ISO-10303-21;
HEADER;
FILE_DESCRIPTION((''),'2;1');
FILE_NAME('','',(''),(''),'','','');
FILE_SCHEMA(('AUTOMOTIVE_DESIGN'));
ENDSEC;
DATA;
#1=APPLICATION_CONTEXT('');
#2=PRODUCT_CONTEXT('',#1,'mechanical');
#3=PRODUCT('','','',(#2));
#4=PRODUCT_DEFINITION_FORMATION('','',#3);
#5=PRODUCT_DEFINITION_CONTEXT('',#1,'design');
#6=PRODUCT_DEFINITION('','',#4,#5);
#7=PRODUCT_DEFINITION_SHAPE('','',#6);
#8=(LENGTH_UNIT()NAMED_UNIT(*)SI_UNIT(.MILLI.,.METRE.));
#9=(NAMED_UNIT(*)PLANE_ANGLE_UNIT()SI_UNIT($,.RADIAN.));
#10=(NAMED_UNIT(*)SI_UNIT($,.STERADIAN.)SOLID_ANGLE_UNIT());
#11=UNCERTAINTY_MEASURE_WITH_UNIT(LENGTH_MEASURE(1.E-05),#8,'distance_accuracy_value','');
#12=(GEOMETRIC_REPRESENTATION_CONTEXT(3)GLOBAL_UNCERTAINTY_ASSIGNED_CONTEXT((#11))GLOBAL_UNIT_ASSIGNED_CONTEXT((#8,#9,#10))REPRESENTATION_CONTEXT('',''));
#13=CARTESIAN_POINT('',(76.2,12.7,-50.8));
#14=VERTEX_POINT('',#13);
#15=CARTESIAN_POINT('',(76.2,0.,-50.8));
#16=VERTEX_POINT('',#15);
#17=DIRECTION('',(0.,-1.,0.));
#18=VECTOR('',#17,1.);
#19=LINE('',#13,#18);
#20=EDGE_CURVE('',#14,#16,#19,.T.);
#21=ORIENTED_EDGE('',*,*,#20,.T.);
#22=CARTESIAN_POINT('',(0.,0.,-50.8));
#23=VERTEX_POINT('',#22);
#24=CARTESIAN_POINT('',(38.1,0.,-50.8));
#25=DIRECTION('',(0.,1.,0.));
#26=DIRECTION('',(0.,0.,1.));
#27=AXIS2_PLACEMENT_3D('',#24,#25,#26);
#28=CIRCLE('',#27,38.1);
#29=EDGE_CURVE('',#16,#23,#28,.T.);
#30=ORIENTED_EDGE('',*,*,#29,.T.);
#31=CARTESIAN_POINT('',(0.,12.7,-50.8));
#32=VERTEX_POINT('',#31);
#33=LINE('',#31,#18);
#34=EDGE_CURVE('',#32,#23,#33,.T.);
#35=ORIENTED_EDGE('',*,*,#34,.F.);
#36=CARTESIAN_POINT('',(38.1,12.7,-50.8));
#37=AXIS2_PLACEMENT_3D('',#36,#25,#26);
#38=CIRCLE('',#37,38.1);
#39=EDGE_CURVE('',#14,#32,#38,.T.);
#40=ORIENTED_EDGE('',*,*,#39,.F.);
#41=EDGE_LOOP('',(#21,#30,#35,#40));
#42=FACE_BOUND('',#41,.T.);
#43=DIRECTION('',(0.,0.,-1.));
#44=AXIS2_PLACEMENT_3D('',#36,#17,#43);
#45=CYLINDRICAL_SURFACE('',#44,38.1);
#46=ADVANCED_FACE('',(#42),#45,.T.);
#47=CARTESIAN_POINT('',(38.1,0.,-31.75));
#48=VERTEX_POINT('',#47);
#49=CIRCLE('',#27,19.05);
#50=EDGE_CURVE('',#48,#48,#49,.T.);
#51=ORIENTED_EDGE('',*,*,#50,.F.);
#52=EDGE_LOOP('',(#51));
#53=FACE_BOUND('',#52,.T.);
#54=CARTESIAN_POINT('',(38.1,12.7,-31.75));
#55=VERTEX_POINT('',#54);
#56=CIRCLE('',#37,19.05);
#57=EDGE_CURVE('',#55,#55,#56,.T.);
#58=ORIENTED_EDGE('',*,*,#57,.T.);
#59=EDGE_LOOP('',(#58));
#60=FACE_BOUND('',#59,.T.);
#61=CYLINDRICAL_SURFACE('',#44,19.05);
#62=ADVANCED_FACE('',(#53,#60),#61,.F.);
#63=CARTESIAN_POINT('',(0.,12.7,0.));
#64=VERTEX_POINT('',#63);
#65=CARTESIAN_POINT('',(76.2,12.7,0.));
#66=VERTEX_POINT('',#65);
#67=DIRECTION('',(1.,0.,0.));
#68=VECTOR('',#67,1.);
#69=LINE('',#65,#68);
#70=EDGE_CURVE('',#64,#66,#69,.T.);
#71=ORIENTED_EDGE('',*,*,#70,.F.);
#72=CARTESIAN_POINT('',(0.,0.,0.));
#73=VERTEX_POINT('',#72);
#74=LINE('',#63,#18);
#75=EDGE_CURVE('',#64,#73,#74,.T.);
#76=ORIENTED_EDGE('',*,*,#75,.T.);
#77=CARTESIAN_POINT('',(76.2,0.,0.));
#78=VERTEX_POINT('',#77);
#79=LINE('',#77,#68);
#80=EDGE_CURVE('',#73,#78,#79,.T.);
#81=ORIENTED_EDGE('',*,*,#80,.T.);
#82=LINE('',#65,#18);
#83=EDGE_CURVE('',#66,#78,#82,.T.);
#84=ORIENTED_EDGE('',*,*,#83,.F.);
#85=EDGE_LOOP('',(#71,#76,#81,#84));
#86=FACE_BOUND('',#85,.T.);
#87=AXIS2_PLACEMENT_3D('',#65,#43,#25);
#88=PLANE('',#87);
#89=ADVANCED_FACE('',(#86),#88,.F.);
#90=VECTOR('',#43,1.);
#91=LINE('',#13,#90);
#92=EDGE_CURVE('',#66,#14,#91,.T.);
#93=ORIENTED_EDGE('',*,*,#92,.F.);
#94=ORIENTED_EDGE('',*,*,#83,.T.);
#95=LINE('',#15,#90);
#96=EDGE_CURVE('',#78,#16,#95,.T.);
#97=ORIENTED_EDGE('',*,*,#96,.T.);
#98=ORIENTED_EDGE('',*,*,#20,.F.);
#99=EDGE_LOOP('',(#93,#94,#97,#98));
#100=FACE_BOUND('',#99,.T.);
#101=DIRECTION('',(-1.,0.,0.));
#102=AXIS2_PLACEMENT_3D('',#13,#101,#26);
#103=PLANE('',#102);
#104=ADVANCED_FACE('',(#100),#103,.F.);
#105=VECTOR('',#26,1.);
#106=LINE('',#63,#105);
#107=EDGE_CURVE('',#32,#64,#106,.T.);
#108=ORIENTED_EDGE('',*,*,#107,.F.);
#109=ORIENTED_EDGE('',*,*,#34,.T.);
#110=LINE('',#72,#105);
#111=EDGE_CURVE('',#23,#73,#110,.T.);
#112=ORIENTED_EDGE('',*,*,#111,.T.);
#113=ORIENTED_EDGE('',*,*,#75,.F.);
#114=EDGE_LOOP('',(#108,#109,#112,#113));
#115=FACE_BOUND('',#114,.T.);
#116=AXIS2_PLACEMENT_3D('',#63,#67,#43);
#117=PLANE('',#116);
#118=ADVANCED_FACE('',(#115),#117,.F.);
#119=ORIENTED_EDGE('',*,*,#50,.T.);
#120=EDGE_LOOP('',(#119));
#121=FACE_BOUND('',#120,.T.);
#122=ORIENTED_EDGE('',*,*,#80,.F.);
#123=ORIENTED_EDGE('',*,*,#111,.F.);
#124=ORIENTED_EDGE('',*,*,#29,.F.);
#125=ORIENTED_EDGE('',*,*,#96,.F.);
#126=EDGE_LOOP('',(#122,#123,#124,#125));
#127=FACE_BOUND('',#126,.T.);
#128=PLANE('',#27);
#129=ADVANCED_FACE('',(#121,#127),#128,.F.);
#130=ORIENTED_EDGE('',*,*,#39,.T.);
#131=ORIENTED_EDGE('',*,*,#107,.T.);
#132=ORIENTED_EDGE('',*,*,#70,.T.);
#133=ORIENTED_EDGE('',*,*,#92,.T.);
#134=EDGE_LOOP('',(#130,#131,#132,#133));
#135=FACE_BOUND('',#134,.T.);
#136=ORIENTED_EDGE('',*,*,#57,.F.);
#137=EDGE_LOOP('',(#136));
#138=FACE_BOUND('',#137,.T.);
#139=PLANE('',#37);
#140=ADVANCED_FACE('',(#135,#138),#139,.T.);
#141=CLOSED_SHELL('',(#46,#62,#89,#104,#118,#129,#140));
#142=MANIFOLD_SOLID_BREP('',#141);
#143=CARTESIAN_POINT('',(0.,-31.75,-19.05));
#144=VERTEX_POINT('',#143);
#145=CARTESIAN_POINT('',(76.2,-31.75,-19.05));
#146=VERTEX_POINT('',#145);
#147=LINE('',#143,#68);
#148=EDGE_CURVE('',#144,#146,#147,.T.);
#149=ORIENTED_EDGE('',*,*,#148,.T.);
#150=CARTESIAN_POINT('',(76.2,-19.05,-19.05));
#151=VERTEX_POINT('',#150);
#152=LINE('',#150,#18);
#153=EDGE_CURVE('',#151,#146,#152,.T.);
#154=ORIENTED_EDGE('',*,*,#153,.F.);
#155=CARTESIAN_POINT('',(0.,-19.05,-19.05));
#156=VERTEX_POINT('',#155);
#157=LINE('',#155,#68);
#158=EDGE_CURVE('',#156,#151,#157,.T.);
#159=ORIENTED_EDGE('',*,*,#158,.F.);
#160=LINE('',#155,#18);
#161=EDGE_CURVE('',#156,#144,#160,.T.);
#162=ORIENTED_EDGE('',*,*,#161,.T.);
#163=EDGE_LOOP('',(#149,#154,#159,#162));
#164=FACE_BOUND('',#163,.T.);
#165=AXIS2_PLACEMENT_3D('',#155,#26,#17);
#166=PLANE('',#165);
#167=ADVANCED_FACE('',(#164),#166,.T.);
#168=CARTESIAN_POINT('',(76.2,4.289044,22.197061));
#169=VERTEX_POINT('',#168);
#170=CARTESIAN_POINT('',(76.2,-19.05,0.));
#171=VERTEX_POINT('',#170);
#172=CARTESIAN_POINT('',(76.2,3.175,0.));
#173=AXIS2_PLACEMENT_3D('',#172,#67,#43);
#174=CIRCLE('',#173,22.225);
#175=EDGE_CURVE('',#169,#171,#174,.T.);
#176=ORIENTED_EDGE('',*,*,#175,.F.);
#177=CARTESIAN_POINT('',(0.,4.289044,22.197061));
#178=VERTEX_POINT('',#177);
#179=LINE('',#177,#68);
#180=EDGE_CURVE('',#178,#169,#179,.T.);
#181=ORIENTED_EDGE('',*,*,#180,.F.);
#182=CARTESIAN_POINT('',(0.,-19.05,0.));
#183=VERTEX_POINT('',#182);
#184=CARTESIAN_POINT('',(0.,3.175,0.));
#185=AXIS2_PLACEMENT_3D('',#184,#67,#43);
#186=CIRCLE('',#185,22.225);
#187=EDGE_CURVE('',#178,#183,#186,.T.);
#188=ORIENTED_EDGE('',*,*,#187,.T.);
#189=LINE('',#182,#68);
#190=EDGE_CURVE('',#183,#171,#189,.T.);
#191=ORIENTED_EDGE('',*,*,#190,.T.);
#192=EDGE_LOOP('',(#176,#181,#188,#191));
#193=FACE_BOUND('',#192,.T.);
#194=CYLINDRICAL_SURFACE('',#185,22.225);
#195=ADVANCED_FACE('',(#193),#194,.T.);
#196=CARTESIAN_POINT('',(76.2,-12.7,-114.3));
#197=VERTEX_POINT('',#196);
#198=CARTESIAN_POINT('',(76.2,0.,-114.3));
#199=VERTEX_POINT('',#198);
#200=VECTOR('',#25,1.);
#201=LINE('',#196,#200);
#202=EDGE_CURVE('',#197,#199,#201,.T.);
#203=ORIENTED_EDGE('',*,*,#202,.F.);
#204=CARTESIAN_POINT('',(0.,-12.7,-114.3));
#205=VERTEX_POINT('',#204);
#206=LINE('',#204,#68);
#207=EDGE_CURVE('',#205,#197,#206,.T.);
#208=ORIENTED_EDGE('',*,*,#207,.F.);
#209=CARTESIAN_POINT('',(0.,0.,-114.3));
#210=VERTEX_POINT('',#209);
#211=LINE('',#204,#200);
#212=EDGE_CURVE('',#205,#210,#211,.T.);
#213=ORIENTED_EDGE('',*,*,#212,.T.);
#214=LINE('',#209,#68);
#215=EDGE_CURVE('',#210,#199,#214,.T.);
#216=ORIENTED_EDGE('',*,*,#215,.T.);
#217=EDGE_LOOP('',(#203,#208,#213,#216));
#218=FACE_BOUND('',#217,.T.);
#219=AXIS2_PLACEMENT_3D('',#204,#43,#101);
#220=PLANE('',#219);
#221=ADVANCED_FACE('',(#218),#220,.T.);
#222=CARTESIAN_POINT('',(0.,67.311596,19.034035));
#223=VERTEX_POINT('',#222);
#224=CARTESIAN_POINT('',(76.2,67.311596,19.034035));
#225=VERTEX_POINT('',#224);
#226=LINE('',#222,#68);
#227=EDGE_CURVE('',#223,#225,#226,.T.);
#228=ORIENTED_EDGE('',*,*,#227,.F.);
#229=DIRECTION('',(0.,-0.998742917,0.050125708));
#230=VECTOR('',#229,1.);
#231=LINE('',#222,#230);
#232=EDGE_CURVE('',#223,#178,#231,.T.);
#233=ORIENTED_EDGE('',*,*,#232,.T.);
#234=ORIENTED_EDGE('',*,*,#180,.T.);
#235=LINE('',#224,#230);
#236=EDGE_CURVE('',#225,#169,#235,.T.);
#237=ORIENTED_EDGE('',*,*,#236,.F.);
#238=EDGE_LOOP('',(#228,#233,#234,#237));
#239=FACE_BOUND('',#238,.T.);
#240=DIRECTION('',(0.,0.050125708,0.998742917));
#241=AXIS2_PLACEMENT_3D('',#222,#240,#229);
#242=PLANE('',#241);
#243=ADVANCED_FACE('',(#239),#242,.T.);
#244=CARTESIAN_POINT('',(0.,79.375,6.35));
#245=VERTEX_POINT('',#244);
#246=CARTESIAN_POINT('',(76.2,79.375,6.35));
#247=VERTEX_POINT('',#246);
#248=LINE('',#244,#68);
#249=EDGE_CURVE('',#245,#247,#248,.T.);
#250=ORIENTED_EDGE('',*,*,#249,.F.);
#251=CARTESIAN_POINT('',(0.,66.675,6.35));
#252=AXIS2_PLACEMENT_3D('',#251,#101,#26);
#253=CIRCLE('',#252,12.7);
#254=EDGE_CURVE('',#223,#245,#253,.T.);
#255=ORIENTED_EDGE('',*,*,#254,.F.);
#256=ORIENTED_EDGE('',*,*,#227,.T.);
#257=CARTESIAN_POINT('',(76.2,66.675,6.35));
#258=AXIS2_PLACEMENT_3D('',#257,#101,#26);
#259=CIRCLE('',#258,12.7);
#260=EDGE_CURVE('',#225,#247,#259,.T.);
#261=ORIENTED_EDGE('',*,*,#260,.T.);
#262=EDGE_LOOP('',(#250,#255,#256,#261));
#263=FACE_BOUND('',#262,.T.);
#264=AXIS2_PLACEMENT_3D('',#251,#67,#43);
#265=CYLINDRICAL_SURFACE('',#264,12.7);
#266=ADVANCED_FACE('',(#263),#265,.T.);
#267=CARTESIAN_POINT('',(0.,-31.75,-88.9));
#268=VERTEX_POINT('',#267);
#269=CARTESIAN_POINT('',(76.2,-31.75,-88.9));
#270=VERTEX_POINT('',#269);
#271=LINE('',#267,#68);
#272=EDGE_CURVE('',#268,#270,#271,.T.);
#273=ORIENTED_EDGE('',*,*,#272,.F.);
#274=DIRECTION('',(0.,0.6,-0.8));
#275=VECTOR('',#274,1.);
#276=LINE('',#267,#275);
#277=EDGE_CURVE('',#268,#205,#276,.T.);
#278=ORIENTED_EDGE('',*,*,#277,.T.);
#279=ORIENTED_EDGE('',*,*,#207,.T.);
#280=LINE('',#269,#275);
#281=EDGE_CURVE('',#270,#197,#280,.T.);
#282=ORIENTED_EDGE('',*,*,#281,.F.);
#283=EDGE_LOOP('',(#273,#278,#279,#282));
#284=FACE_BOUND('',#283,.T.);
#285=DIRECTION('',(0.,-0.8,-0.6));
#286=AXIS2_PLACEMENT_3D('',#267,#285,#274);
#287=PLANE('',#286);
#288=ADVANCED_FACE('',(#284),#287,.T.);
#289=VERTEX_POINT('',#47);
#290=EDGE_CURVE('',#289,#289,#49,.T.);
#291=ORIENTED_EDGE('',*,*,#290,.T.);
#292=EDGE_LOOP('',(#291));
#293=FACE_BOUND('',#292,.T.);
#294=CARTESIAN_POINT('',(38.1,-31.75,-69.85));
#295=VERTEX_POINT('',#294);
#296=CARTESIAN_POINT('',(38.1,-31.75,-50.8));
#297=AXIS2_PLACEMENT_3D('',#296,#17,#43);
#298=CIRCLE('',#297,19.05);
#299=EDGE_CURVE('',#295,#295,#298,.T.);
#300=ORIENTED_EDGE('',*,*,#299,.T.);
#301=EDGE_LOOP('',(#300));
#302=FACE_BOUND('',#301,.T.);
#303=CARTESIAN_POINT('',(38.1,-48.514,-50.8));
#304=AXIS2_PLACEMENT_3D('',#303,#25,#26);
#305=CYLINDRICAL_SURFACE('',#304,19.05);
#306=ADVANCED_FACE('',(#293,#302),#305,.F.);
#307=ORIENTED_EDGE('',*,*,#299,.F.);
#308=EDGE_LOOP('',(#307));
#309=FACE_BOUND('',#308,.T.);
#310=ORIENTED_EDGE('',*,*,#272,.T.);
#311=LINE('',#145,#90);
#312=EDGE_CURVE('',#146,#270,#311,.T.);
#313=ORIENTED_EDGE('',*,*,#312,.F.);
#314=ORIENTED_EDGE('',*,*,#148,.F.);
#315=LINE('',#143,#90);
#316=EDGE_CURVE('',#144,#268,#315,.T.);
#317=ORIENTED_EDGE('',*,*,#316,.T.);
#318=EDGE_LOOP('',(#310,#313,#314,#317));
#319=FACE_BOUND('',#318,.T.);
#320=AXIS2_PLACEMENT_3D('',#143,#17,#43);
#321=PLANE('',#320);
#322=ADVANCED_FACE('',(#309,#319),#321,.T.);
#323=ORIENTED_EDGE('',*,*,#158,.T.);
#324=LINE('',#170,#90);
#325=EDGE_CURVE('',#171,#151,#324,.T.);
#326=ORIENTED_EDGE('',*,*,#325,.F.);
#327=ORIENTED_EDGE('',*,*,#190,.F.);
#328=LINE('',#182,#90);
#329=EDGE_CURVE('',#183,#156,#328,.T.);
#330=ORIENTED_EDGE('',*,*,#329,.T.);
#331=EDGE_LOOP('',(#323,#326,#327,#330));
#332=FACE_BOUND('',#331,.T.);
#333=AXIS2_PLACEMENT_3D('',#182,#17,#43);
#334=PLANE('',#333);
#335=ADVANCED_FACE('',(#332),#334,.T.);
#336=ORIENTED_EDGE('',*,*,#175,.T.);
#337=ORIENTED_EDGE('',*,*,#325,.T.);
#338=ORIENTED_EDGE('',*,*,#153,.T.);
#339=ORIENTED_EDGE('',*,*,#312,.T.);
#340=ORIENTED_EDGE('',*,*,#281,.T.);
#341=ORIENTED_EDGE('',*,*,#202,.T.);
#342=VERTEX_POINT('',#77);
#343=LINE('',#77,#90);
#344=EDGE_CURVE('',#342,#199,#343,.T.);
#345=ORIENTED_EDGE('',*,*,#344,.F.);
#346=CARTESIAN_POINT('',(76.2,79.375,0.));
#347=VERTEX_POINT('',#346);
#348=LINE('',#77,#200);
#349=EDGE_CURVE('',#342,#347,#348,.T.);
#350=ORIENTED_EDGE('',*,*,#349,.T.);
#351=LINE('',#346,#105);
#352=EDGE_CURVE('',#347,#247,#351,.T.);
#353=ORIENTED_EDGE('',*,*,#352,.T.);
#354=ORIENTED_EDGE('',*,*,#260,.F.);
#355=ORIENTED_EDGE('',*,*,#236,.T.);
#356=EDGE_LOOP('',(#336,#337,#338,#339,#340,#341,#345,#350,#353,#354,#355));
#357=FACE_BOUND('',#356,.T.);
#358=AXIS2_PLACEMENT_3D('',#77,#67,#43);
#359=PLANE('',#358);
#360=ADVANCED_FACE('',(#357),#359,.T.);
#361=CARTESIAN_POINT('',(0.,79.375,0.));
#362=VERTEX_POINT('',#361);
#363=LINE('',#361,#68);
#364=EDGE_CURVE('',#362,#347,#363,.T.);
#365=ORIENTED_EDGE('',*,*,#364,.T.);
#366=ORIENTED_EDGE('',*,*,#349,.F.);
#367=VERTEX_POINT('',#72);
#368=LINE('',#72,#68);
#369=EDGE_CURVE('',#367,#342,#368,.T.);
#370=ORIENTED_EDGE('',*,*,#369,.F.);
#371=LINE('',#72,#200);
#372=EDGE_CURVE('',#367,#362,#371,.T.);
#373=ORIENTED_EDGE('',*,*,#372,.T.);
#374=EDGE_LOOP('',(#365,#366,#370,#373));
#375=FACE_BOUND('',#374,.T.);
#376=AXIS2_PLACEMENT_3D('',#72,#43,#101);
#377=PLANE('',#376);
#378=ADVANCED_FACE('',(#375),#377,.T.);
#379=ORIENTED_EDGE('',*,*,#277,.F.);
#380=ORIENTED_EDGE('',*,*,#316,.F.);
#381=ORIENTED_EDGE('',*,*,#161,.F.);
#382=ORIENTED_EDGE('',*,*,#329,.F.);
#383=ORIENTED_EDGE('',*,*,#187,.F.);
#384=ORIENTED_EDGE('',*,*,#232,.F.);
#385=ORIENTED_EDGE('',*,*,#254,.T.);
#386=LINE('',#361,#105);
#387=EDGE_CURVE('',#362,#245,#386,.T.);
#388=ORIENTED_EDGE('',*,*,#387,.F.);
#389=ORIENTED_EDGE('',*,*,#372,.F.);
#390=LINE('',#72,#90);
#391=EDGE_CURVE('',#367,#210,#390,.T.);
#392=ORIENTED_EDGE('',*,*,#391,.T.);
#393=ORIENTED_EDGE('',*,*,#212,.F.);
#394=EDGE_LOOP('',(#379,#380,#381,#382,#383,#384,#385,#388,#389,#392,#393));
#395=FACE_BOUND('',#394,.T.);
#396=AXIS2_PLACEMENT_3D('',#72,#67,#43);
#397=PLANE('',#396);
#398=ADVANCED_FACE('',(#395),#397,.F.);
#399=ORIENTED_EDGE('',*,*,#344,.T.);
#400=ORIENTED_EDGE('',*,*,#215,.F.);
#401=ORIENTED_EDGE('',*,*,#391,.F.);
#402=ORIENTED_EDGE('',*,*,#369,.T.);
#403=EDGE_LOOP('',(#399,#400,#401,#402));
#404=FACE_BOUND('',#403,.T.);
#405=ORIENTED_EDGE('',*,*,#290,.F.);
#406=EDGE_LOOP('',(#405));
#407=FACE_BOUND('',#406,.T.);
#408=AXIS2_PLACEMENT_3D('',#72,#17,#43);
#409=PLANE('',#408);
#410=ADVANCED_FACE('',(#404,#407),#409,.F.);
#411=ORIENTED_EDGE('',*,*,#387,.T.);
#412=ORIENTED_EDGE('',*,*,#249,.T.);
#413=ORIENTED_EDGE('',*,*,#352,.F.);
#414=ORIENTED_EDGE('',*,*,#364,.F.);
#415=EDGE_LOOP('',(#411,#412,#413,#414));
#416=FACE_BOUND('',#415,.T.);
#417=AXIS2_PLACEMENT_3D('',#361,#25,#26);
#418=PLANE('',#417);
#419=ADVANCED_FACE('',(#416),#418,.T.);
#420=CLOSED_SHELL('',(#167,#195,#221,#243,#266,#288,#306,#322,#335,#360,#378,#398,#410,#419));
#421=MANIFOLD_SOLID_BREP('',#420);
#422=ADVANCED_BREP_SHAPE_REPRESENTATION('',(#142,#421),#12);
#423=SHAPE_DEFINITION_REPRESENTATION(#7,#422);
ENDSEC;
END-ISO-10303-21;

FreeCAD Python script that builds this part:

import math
import FreeCAD as App
import Part
import Sketcher

V = App.Vector
Q = App.Units.Quantity

doc = App.newDocument("Part")
body = doc.addObject("PartDesign::Body", "Body")

sketch1 = body.newObject("Sketcher::SketchObject", "Sketch")
sketch1.AttachmentSupport = (doc.getObject("YZ_Plane"), [""])
sketch1.MapMode = "FlatFace"
sketch1.addGeometry([
    Part.LineSegment(V(-31.7, -88.9, 0), V(-31.8, -19.1, 0)),
    Part.LineSegment(V(-31.8, -19.1, 0), V(-19, -19, 0)),
    Part.LineSegment(V(-19, -19, 0), V(-19.1, 0, 0)),
    Part.ArcOfCircle(Part.Circle(V(3.2, 0, 0), V(0, 0, 1), 22.2), math.radians(87), math.radians(180)),
    Part.LineSegment(V(4.3, 22.2, 0), V(67.3, 19, 0)),
    Part.ArcOfCircle(Part.Circle(V(66.7, 6.4, 0), V(0, 0, 1), 12.7), math.radians(0), math.radians(87)),
    Part.LineSegment(V(79.4, 6.4, 0), V(79.4, 0, 0)),
    Part.LineSegment(V(79.4, 0, 0), V(3.2, 0, 0)),
    Part.LineSegment(V(3.2, 0, 0), V(0, 0, 0)),
    Part.LineSegment(V(0, 0, 0), V(0, -114.3, 0)),
    Part.LineSegment(V(0, -114.3, 0), V(-12.7, -114.3, 0)),
    Part.LineSegment(V(-12.7, -114.3, 0), V(-31.7, -88.9, 0)),
], False)
sketch1.addConstraint([
    Sketcher.Constraint("Coincident", 0, 2, 1, 1),
    Sketcher.Constraint("Coincident", 1, 2, 2, 1),
    Sketcher.Constraint("Tangent", 2, 2, 3, 2),
    Sketcher.Constraint("Tangent", 3, 1, 4, 1),
    Sketcher.Constraint("Tangent", 4, 2, 5, 2),
    Sketcher.Constraint("Tangent", 5, 1, 6, 1),
    Sketcher.Constraint("Coincident", 6, 2, 7, 1),
    Sketcher.Constraint("Coincident", 7, 2, 8, 1),
    Sketcher.Constraint("Coincident", 8, 2, 9, 1),
    Sketcher.Constraint("Coincident", 9, 2, 10, 1),
    Sketcher.Constraint("Coincident", 10, 2, 11, 1),
    Sketcher.Constraint("Coincident", 11, 2, 0, 1),
    Sketcher.Constraint("Vertical", 0),
    Sketcher.Constraint("Horizontal", 1),
    Sketcher.Constraint("Vertical", 2),
    Sketcher.Constraint("Vertical", 6),
    Sketcher.Constraint("Horizontal", 7),
    Sketcher.Constraint("Horizontal", 8),
    Sketcher.Constraint("Vertical", 9),
    Sketcher.Constraint("Horizontal", 10),
    Sketcher.Constraint("Coincident", 8, 2, -1, 1),
    Sketcher.Constraint("Coincident", 7, 2, 3, 3),
    Sketcher.Constraint("Equal", 1, 10),
    Sketcher.Constraint("Radius", 5, Q("0.5 in")),
    Sketcher.Constraint("DistanceX", 7, 2, 7, 1, Q("3 in")),
    Sketcher.Constraint("DistanceX", 1, 1, 1, 2, Q("0.5 in")),
    Sketcher.Constraint("DistanceY", 9, 2, 9, 1, Q("4.5 in")),
    Sketcher.Constraint("Radius", 3, Q("0.875 in")),
    Sketcher.Constraint("DistanceY", 0, 2, 5, 3, Q("1 in")),
    Sketcher.Constraint("DistanceY", 10, 2, 11, 2, Q("1 in")),
    Sketcher.Constraint("DistanceY", 0, 1, 0, 2, Q("2.75 in")),
    Sketcher.Constraint("Distance", 11, Q("1.25 in")),
])
pad1 = body.newObject("PartDesign::Pad", "Pad")
pad1.Profile = sketch1
pad1.Length = Q("3 in")

sketch2 = body.newObject("Sketcher::SketchObject", "Sketch001")
sketch2.AttachmentSupport = (doc.getObject("XZ_Plane"), [""])
sketch2.MapMode = "FlatFace"
sketch2.addGeometry(Part.Circle(V(38, -51, 0), V(0, 0, 1), 19), False)
sketch2.addConstraint([
    Sketcher.Constraint("Diameter", 0, Q("1.5 in")),
    Sketcher.Constraint("DistanceY", 0, 3, -1, 1, Q("2 in")),
    Sketcher.Constraint("DistanceX", -1, 1, 0, 3, Q("1.5 in")),
])
pocket1 = body.newObject("PartDesign::Pocket", "Pocket")
pocket1.Profile = sketch2
pocket1.Length = Q("1.91 in")
pocket1.Reversed = True
body2 = doc.addObject("PartDesign::Body", "Body001")

sketch3 = body2.newObject("Sketcher::SketchObject", "Sketch002")
sketch3.AttachmentSupport = (doc.getObject("XZ_Plane001"), [""])
sketch3.MapMode = "FlatFace"
sketch3.addGeometry([
    Part.LineSegment(V(0, -51, 0), V(0, 0, 0)),
    Part.LineSegment(V(0, 0, 0), V(76, 0, 0)),
    Part.LineSegment(V(76, 0, 0), V(76, -51, 0)),
    Part.ArcOfCircle(Part.Circle(V(38, -51, 0), V(0, 0, 1), 38), math.radians(180), math.radians(360)),
    Part.Circle(V(38, -51, 0), V(0, 0, 1), 19),
], False)
sketch3.addConstraint([
    Sketcher.Constraint("Coincident", 0, 2, 1, 1),
    Sketcher.Constraint("Coincident", 1, 2, 2, 1),
    Sketcher.Constraint("Tangent", 2, 2, 3, 2),
    Sketcher.Constraint("Tangent", 3, 1, 0, 1),
    Sketcher.Constraint("Vertical", 0),
    Sketcher.Constraint("Horizontal", 1),
    Sketcher.Constraint("Vertical", 2),
    Sketcher.Constraint("Coincident", 0, 2, -1, 1),
    Sketcher.Constraint("Coincident", 4, 3, 3, 3),
    Sketcher.Constraint("Diameter", 4, Q("1.5 in")),
    Sketcher.Constraint("Radius", 3, Q("1.5 in")),
    Sketcher.Constraint("DistanceY", 0, 1, 0, 2, Q("2 in")),
])
pad2 = body2.newObject("PartDesign::Pad", "Pad001")
pad2.Profile = sketch3
pad2.Length = Q("0.5 in")
pad2.Reversed = True

doc.recompute()
